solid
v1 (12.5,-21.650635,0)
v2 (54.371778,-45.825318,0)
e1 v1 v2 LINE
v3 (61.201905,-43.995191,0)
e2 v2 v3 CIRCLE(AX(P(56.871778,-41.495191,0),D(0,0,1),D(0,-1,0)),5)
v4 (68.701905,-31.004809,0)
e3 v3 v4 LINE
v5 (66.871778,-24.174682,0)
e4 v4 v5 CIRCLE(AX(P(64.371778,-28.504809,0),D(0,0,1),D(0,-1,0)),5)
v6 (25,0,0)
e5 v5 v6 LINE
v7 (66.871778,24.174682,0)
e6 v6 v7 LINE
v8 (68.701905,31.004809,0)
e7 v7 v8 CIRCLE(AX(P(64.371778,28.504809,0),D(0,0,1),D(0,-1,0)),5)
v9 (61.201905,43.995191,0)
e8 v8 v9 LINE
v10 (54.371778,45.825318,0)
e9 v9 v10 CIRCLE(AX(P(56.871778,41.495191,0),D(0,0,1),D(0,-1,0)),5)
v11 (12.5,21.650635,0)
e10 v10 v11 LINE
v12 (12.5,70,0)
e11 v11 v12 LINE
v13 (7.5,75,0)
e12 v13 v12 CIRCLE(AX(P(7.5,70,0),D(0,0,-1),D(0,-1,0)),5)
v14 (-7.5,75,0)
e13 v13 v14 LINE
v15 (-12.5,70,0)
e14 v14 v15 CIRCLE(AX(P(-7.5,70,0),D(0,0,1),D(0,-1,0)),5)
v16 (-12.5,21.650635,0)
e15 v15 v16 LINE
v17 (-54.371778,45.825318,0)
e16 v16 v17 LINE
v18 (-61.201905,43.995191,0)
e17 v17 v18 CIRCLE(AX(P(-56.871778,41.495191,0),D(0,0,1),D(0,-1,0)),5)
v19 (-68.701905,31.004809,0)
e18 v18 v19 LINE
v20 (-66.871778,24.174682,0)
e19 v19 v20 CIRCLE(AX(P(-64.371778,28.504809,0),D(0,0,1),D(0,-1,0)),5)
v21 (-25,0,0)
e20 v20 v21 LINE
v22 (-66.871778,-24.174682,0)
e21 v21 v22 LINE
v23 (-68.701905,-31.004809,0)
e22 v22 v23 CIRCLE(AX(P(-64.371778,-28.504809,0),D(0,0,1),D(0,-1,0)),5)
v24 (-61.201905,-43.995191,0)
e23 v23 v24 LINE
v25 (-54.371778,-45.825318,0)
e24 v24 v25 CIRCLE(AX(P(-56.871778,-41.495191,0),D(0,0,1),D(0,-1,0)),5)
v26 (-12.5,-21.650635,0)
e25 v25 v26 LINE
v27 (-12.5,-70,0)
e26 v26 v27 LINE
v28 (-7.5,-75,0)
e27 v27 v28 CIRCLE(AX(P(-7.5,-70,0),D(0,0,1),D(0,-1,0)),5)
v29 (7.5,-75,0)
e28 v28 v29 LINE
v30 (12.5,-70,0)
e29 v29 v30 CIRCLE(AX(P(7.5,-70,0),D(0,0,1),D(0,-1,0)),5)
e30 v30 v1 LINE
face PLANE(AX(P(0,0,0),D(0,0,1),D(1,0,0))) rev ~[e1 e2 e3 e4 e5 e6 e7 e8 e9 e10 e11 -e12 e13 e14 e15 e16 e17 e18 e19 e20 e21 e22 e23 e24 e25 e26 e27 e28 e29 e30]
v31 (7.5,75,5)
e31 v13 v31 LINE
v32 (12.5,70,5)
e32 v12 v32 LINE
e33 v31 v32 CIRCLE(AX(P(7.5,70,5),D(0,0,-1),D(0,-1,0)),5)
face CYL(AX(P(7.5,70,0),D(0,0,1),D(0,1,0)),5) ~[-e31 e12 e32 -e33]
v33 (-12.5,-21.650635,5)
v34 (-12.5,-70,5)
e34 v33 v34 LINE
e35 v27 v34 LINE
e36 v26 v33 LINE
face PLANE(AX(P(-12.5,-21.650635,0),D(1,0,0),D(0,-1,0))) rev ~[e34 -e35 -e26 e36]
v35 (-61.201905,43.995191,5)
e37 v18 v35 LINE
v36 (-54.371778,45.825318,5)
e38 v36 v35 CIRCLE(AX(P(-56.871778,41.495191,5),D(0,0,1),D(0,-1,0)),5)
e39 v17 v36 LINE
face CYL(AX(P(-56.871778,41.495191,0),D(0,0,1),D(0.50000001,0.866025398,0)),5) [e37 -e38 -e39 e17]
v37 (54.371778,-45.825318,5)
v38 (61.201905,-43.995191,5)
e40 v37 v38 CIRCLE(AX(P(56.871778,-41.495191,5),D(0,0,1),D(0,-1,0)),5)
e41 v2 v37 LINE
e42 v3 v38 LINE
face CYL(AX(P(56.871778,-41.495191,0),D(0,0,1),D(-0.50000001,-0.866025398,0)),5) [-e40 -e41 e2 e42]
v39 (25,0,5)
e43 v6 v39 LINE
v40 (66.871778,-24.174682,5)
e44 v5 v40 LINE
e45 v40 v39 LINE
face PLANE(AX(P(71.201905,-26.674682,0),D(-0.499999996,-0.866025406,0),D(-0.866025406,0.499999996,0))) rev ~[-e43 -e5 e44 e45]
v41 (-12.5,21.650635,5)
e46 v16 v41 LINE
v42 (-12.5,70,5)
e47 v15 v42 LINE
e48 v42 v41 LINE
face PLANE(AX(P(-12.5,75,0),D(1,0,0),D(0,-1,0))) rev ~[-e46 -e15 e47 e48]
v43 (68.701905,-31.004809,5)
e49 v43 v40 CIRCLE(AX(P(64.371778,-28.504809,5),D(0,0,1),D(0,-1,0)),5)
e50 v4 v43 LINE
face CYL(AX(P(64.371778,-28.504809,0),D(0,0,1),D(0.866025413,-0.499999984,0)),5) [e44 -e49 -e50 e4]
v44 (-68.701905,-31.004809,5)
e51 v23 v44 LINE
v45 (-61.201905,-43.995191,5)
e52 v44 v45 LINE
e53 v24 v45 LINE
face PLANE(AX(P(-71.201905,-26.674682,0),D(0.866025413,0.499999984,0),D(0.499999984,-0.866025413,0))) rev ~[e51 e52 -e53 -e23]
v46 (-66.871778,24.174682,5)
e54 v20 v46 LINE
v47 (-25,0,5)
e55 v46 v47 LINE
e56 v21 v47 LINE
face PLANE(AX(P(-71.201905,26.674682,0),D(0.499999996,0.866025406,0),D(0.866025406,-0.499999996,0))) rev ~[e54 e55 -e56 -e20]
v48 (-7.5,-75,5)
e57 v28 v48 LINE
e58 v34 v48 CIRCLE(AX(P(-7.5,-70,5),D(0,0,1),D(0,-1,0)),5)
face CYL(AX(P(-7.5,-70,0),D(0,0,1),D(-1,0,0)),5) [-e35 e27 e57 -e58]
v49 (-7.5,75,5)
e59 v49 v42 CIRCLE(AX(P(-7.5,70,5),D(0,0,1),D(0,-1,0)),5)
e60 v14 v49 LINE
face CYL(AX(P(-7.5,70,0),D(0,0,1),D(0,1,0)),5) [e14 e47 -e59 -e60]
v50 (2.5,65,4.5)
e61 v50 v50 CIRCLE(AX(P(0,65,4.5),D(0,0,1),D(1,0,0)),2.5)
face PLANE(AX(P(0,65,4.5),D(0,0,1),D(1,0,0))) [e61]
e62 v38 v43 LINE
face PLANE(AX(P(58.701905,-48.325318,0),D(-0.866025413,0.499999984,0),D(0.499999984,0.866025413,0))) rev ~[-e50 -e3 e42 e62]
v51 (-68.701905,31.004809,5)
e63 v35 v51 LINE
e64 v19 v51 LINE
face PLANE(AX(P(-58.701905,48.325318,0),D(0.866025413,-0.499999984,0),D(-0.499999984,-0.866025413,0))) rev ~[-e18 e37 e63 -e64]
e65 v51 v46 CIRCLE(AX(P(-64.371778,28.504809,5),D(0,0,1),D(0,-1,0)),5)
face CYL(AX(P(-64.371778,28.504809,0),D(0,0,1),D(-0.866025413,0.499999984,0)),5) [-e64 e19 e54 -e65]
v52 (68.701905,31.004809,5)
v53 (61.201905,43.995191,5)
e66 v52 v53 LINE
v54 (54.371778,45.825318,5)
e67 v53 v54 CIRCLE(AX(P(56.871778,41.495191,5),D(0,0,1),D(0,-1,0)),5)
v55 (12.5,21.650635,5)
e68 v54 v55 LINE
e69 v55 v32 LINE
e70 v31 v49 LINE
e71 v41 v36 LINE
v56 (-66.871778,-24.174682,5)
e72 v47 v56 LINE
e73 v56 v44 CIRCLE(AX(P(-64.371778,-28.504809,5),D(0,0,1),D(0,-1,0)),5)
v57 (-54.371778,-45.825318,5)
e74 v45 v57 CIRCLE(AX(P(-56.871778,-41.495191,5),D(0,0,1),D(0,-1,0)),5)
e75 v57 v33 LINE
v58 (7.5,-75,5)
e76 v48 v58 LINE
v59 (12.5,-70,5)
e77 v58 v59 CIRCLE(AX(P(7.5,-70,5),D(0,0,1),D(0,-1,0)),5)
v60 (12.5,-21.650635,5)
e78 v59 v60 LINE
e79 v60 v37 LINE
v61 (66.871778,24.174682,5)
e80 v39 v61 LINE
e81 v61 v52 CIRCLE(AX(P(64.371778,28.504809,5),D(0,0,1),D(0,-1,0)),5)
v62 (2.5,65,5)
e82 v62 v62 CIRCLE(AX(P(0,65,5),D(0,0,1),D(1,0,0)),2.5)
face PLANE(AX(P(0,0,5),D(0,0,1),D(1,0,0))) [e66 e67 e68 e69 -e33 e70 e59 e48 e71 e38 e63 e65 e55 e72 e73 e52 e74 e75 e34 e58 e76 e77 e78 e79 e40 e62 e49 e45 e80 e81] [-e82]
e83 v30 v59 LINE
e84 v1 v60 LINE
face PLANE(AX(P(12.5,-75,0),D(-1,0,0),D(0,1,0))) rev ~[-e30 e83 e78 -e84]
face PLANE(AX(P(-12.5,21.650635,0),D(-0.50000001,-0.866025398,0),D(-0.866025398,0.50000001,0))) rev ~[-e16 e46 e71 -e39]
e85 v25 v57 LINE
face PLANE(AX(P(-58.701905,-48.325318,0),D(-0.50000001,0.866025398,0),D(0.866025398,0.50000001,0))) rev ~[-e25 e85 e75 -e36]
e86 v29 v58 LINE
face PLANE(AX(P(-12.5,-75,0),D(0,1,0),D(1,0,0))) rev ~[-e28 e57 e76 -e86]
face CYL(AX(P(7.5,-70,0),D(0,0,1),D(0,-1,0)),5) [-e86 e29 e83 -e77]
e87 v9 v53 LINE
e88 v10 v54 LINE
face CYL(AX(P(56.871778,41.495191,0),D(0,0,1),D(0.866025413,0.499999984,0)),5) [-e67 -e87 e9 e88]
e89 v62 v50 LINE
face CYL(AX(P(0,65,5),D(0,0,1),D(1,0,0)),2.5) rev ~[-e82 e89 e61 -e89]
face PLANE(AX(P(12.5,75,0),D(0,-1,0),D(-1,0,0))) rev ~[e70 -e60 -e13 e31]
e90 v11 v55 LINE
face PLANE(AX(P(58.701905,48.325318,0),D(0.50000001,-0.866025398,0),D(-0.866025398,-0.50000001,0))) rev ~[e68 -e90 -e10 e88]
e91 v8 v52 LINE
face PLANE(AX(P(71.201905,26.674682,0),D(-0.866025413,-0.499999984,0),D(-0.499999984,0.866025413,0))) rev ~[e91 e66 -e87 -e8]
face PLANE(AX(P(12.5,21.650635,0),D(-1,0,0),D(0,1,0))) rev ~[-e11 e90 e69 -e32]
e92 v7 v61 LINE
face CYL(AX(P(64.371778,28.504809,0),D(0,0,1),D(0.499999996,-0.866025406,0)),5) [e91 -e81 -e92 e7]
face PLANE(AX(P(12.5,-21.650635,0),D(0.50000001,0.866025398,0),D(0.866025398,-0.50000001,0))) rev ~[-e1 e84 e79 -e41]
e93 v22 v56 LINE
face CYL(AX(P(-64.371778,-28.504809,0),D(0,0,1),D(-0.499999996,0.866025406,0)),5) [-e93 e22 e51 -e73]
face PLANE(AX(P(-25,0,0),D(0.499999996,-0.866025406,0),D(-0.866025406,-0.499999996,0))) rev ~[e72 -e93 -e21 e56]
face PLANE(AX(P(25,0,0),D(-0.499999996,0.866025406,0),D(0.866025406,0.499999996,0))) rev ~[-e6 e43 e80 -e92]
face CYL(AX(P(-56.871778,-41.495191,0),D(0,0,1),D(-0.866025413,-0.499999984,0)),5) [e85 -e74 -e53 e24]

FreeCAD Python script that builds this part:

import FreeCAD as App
import Part
import Sketcher
Q = App.Units.Quantity


def edges_at(feature, points):
    """Names of the edges that pass closest to the given points."""
    edges = feature.Shape.Edges
    near = lambda p: min(range(len(edges)), key=lambda i: edges[i].distToShape(Part.Vertex(*p))[0])
    return sorted({f"Edge{near(p) + 1}" for p in points})

doc = App.newDocument("Part")
body = doc.addObject("PartDesign::Body", "Body")

sketch1 = doc.addObject("Sketcher::SketchObject", "Sketch")
body.addObject(sketch1)
sketch1.AttachmentSupport = (doc.XY_Plane, [""])
sketch1.MapMode = "FlatFace"
sketch1.addGeometry([
    Part.LineSegment(App.Vector(12.5, 75, 0), App.Vector(-12.5, 75, 0)),
    Part.LineSegment(App.Vector(-12.5, 75, 0), App.Vector(-12.5, 21.650635, 0)),
    Part.LineSegment(App.Vector(-12.5, 21.650635, 0), App.Vector(-58.701905, 48.325318, 0)),
    Part.LineSegment(App.Vector(-58.701905, 48.325318, 0), App.Vector(-71.201905, 26.674682, 0)),
    Part.LineSegment(App.Vector(-71.201905, 26.674682, 0), App.Vector(-25, 0, 0)),
    Part.LineSegment(App.Vector(-25, 0, 0), App.Vector(-71.201905, -26.674682, 0)),
    Part.LineSegment(App.Vector(-71.201905, -26.674682, 0), App.Vector(-58.701905, -48.325318, 0)),
    Part.LineSegment(App.Vector(-58.701905, -48.325318, 0), App.Vector(-12.5, -21.650635, 0)),
    Part.LineSegment(App.Vector(-12.5, -21.650635, 0), App.Vector(-12.5, -75, 0)),
    Part.LineSegment(App.Vector(-12.5, -75, 0), App.Vector(12.5, -75, 0)),
    Part.LineSegment(App.Vector(12.5, -75, 0), App.Vector(12.5, -21.650635, 0)),
    Part.LineSegment(App.Vector(12.5, -21.650635, 0), App.Vector(58.701905, -48.325318, 0)),
    Part.LineSegment(App.Vector(58.701905, -48.325318, 0), App.Vector(71.201905, -26.674682, 0)),
    Part.LineSegment(App.Vector(71.201905, -26.674682, 0), App.Vector(25, 0, 0)),
    Part.LineSegment(App.Vector(25, 0, 0), App.Vector(71.201905, 26.674682, 0)),
    Part.LineSegment(App.Vector(71.201905, 26.674682, 0), App.Vector(58.701905, 48.325318, 0)),
    Part.LineSegment(App.Vector(58.701905, 48.325318, 0), App.Vector(12.5, 21.650635, 0)),
    Part.LineSegment(App.Vector(12.5, 21.650635, 0), App.Vector(12.5, 75, 0)),
], False)
sketch1.addConstraint([
    Sketcher.Constraint("Coincident", 0, 2, 1, 1),
    Sketcher.Constraint("Coincident", 1, 2, 2, 1),
    Sketcher.Constraint("Coincident", 2, 2, 3, 1),
    Sketcher.Constraint("Coincident", 3, 2, 4, 1),
    Sketcher.Constraint("Coincident", 4, 2, 5, 1),
    Sketcher.Constraint("Coincident", 5, 2, 6, 1),
    Sketcher.Constraint("Coincident", 6, 2, 7, 1),
    Sketcher.Constraint("Coincident", 7, 2, 8, 1),
    Sketcher.Constraint("Coincident", 8, 2, 9, 1),
    Sketcher.Constraint("Coincident", 9, 2, 10, 1),
    Sketcher.Constraint("Coincident", 10, 2, 11, 1),
    Sketcher.Constraint("Coincident", 11, 2, 12, 1),
    Sketcher.Constraint("Coincident", 12, 2, 13, 1),
    Sketcher.Constraint("Coincident", 13, 2, 14, 1),
    Sketcher.Constraint("Coincident", 14, 2, 15, 1),
    Sketcher.Constraint("Coincident", 15, 2, 16, 1),
    Sketcher.Constraint("Coincident", 16, 2, 17, 1),
    Sketcher.Constraint("Coincident", 17, 2, 0, 1),
    Sketcher.Constraint("Horizontal", 0),
    Sketcher.Constraint("Vertical", 1),
    Sketcher.Constraint("Vertical", 8),
    Sketcher.Constraint("Horizontal", 9),
    Sketcher.Constraint("Vertical", 10),
    Sketcher.Constraint("Vertical", 17),
    Sketcher.Constraint("Symmetric", 0, 2, 9, 2, -1, 1),
    Sketcher.Constraint("Symmetric", 2, 2, 11, 2, -1, 1),
    Sketcher.Constraint("Symmetric", 3, 2, 12, 2, -1, 1),
    Sketcher.Constraint("Symmetric", 4, 2, 13, 2, -1, 1),
    Sketcher.Constraint("Symmetric", 5, 2, 14, 2, -1, 1),
    Sketcher.Constraint("Symmetric", 6, 2, 15, 2, -1, 1),
    Sketcher.Constraint("Symmetric", 7, 2, 16, 2, -1, 1),
    Sketcher.Constraint("Symmetric", 7, 2, 10, 2, -2),
    Sketcher.Constraint("Symmetric", 6, 2, 11, 2, -2),
    Sketcher.Constraint("Symmetric", 5, 2, 12, 2, -2),
    Sketcher.Constraint("PointOnObject", 4, 2, -1),
    Sketcher.Constraint("Perpendicular", 2, 3),
    Sketcher.Constraint("Perpendicular", 3, 4),
    Sketcher.Constraint("Perpendicular", 6, 7),
    Sketcher.Constraint("Equal", 2, 4),
    Sketcher.Constraint("DistanceX", 0, 2, 0, 1, 25.0),
    Sketcher.Constraint("Angle", 2, Q("149.999999 deg")),
    Sketcher.Constraint("Distance", 3, 25.000001),
    Sketcher.Constraint("DistanceY", -1, 1, 0, 2, 75.0),
    Sketcher.Constraint("DistanceY", 5, 2, 2, 2, 75.0),
])
pad1 = doc.addObject("PartDesign::Pad", "Pad")
body.addObject(pad1)
pad1.Profile = sketch1
pad1.Length = 5
doc.recompute()

fillet = doc.addObject("PartDesign::Fillet", "Fillet")
body.addObject(fillet)
fillet.Base = (pad1, edges_at(pad1, [
    (-71.202, -26.675, 2.5),
    (-58.702, -48.325, 2.5),
    (-12.5, -75, 2.5),
    (12.5, -75, 2.5),
    (-71.202, 26.675, 2.5),
    (58.702, -48.325, 2.5),
    (71.202, -26.675, 2.5),
    (71.202, 26.675, 2.5),
    (58.702, 48.325, 2.5),
    (12.5, 75, 2.5),
    (-12.5, 75, 2.5),
    (-58.702, 48.325, 2.5),
]))
fillet.Radius = 5

sketch2 = doc.addObject("Sketcher::SketchObject", "Sketch001")
body.addObject(sketch2)
sketch2.AttachmentSupport = (doc.XY_Plane, [""])
sketch2.MapMode = "FlatFace"
sketch2.AttachmentOffset = App.Placement(App.Vector(0, 0, 5), App.Rotation())
sketch2.addGeometry(Part.Circle(App.Vector(0, 65, 0), App.Vector(0, 0, 1), 2.5), False)
sketch2.addConstraint([
    Sketcher.Constraint("PointOnObject", 0, 3, -2),
    Sketcher.Constraint("Diameter", 0, 5.0),
    Sketcher.Constraint("DistanceY", -1, 1, 0, 3, 65.0),
])
pocket1 = doc.addObject("PartDesign::Pocket", "Pocket")
body.addObject(pocket1)
pocket1.Profile = sketch2
pocket1.Length = 0.5

doc.recompute()
